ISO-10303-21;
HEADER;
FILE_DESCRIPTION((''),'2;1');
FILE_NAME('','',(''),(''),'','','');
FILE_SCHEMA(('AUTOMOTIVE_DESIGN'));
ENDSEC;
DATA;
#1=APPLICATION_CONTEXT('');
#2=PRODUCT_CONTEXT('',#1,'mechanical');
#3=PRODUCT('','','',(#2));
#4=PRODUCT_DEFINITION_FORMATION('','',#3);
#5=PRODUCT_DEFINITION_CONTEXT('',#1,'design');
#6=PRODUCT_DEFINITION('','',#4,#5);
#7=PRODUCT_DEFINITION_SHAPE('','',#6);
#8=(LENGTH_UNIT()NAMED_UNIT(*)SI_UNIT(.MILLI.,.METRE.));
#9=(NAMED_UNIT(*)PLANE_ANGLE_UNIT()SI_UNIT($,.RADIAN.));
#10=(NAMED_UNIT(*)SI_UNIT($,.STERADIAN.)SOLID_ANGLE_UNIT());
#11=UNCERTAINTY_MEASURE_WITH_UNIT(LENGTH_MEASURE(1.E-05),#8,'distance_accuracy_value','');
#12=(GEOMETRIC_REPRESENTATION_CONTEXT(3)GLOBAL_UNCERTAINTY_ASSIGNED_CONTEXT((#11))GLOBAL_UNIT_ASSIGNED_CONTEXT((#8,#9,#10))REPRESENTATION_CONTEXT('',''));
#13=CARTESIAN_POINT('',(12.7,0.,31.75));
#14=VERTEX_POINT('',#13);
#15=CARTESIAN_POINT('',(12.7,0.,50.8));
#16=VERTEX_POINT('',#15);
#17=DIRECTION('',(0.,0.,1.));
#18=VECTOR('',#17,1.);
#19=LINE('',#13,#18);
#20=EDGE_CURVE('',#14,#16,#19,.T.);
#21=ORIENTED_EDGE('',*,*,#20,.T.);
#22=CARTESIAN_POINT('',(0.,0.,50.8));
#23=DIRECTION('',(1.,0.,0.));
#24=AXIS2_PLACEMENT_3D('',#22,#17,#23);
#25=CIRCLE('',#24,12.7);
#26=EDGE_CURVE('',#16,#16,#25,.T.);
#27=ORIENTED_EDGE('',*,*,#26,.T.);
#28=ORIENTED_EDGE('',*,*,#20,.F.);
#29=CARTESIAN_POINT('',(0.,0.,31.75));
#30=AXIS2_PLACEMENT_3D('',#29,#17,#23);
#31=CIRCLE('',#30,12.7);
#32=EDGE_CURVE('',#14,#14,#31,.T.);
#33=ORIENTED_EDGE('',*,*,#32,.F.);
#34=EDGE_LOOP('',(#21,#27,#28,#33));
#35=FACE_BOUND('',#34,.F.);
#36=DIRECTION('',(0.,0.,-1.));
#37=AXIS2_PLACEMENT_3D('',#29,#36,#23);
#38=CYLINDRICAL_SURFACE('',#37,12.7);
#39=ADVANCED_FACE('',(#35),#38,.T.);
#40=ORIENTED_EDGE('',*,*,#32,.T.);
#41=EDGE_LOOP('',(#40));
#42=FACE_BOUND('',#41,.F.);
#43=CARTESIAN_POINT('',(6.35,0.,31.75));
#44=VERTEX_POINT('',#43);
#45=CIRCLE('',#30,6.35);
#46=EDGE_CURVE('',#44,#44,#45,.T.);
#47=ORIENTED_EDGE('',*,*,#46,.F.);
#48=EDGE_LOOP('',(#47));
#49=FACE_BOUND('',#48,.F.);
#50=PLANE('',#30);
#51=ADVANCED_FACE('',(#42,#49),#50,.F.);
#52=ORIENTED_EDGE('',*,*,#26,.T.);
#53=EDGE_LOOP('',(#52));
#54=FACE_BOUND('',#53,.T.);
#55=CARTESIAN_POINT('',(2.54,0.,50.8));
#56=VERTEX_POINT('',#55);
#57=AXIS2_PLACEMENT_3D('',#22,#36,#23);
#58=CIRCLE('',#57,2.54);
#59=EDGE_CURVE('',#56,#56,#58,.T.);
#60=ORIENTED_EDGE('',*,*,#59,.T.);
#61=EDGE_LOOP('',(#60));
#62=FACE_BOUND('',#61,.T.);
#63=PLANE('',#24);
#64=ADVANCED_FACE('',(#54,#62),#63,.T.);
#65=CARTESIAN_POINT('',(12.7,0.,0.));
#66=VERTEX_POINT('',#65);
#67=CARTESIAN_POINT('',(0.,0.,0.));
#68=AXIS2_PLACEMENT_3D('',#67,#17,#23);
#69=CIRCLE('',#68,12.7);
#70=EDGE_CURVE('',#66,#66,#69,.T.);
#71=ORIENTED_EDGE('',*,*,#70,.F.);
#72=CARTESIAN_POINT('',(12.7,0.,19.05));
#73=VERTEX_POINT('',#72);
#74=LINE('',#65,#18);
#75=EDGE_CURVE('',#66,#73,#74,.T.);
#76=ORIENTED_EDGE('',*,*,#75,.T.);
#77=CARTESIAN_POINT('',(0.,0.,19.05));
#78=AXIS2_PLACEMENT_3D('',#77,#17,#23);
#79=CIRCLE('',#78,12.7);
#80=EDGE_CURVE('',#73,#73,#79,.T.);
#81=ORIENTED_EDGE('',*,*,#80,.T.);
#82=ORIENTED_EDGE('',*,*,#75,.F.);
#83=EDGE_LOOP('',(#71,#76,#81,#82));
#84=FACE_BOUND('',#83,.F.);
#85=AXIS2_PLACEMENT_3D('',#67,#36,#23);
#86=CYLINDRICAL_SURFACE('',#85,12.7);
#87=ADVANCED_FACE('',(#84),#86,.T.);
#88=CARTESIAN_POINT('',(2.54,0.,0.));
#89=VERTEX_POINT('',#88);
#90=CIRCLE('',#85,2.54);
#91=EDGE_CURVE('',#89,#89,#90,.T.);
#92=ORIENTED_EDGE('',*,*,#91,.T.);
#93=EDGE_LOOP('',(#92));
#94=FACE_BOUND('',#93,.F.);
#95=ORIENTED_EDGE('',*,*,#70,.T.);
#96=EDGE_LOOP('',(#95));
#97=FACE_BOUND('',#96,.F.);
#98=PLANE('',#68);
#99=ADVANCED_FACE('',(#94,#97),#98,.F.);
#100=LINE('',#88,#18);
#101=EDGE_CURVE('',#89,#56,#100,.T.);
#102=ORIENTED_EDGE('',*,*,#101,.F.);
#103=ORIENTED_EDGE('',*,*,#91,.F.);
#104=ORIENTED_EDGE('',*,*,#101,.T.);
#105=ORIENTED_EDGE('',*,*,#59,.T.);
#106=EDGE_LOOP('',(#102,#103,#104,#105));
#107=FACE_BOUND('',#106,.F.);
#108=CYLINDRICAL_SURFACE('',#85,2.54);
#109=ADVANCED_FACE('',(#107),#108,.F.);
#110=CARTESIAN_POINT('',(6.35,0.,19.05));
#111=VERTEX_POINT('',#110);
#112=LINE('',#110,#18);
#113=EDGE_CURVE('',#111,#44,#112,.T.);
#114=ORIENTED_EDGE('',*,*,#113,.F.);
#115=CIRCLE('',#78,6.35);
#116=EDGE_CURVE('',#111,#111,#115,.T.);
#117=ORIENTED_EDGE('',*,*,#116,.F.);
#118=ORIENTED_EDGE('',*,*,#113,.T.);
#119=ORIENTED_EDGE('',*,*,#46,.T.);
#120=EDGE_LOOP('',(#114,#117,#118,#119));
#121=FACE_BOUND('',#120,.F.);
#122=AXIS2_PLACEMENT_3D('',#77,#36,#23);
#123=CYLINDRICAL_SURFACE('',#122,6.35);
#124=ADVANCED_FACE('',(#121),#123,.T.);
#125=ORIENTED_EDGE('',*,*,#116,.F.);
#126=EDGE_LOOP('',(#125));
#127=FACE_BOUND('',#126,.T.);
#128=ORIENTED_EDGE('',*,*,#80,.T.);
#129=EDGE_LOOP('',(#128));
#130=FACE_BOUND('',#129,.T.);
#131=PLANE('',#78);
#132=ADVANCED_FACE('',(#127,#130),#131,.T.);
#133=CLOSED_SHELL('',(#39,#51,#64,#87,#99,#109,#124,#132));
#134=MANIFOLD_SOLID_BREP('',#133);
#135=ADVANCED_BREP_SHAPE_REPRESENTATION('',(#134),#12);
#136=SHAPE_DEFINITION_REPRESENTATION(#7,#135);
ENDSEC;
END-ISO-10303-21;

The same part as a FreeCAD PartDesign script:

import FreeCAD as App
import Part
import Sketcher
from FreeCAD import Vector
Q = App.Units.Quantity

doc = App.newDocument("Part")
params = doc.addObject("Spreadsheet::Sheet", "Params")
for row, (alias, value) in enumerate([
    ("sketch1_diameter", "1 in"),
    ("pad1_length", "0.75 in"),
    ("sketch2_diameter", "0.5 in"),
    ("pad2_length", "0.5 in"),
    ("sketch3_diameter", "1 in"),
    ("pad3_length", "0.75 in"),
    ("sketch4_diameter", "0.2 in"),
    ("pocket1_length", "2 in"),
], start=1):
    params.set(f"A{row}", alias)
    params.set(f"B{row}", "=" + value)
    params.setAlias(f"B{row}", alias)

body = doc.addObject("PartDesign::Body", "Body")

sketch1 = body.newObject("Sketcher::SketchObject", "Sketch")
sketch1.AttachmentSupport = (doc.getObject("XY_Plane"), [""])
sketch1.MapMode = "FlatFace"
sketch1.addGeometry(Part.Circle(Vector(0, 0, 0), Vector(0, 0, 1), 13), False)
sketch1.addConstraint([
    Sketcher.Constraint("Coincident", 0, 3, -1, 1),
    Sketcher.Constraint("Diameter", 0, Q("1 in")),
])
sketch1.setExpression("Constraints[1]", "Params.sketch1_diameter")
pad1 = body.newObject("PartDesign::Pad", "Pad")
pad1.Profile = sketch1
pad1.setExpression("Length", "Params.pad1_length")

sketch2 = body.newObject("Sketcher::SketchObject", "Sketch001")
sketch2.AttachmentSupport = (doc.getObject("XY_Plane"), [""])
sketch2.MapMode = "FlatFace"
sketch2.AttachmentOffset = App.Placement(Vector(0, 0, 0.75 * 25.4), App.Rotation())
sketch2.addGeometry(Part.Circle(Vector(0, 0, 0), Vector(0, 0, 1), 6), False)
sketch2.addConstraint([
    Sketcher.Constraint("Coincident", 0, 3, -1, 1),
    Sketcher.Constraint("Diameter", 0, Q("0.5 in")),
])
sketch2.setExpression("Constraints[1]", "Params.sketch2_diameter")
pad2 = body.newObject("PartDesign::Pad", "Pad001")
pad2.Profile = sketch2
pad2.setExpression("Length", "Params.pad2_length")

sketch3 = body.newObject("Sketcher::SketchObject", "Sketch002")
sketch3.AttachmentSupport = (doc.getObject("XY_Plane"), [""])
sketch3.MapMode = "FlatFace"
sketch3.AttachmentOffset = App.Placement(Vector(0, 0, 1.25 * 25.4), App.Rotation())
sketch3.addGeometry(Part.Circle(Vector(0, 0, 0), Vector(0, 0, 1), 13), False)
sketch3.addConstraint([
    Sketcher.Constraint("Coincident", 0, 3, -1, 1),
    Sketcher.Constraint("Diameter", 0, Q("1 in")),
])
sketch3.setExpression("Constraints[1]", "Params.sketch3_diameter")
pad3 = body.newObject("PartDesign::Pad", "Pad002")
pad3.Profile = sketch3
pad3.setExpression("Length", "Params.pad3_length")

sketch4 = body.newObject("Sketcher::SketchObject", "Sketch003")
sketch4.AttachmentSupport = (doc.getObject("XY_Plane"), [""])
sketch4.MapMode = "FlatFace"
sketch4.addGeometry(Part.Circle(Vector(0, 0, 0), Vector(0, 0, 1), 2.5), False)
sketch4.addConstraint([
    Sketcher.Constraint("Coincident", 0, 3, -1, 1),
    Sketcher.Constraint("Diameter", 0, Q("0.2 in")),
])
sketch4.setExpression("Constraints[1]", "Params.sketch4_diameter")
pocket1 = body.newObject("PartDesign::Pocket", "Pocket")
pocket1.Profile = sketch4
pocket1.setExpression("Length", "Params.pocket1_length")
pocket1.Reversed = True

doc.recompute()
